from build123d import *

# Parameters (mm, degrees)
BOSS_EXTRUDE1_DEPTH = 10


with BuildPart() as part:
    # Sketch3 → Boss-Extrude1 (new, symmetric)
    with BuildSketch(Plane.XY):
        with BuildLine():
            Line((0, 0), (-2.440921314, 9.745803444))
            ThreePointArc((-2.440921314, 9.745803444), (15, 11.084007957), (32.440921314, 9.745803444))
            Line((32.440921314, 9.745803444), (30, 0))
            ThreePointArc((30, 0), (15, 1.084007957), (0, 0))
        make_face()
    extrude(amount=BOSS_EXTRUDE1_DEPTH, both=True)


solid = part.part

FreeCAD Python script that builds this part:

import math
import FreeCAD as App
import Part
import Sketcher
from FreeCAD import Vector

doc = App.newDocument("Part")
body = doc.addObject("PartDesign::Body", "Body")

sketch1 = body.newObject("Sketcher::SketchObject", "Sketch")
sketch1.AttachmentSupport = (doc.getObject("XY_Plane"), [""])
sketch1.MapMode = "FlatFace"
sketch1.addGeometry([
    Part.LineSegment(Vector(-2.440921, 9.745803, 0), Vector(0, 0, 0)),
    Part.ArcOfCircle(Part.Circle(Vector(15, -103.239522, 0), Vector(0, 0, 1), 104.32353), math.radians(81.733161), math.radians(98.266839)),
    Part.LineSegment(Vector(30, 0, 0), Vector(32.440921, 9.745803, 0)),
    Part.ArcOfCircle(Part.Circle(Vector(15, -103.239522, 0), Vector(0, 0, 1), 114.32353), math.radians(81.224829), math.radians(98.775171)),
], False)
sketch1.addConstraint([
    Sketcher.Constraint("Coincident", 0, 2, 1, 2),
    Sketcher.Constraint("Coincident", 1, 1, 2, 1),
    Sketcher.Constraint("Coincident", 2, 2, 3, 1),
    Sketcher.Constraint("Coincident", 3, 2, 0, 1),
    Sketcher.Constraint("Coincident", 0, 2, -1, 1),
    Sketcher.Constraint("Coincident", 3, 3, 1, 3),
    Sketcher.Constraint("PointOnObject", 1, 1, -1),
    Sketcher.Constraint("Horizontal", 2, 2, 3, 2),
    Sketcher.Constraint("DistanceX", -1, 1, 1, 3, 15.0),
    Sketcher.Constraint("Radius", 1, 104.32353),
    Sketcher.Constraint("Radius", 3, 114.32353),
    Sketcher.Constraint("Distance", 0, 10.046829),
])
pad1 = body.newObject("PartDesign::Pad", "Pad")
pad1.Profile = sketch1
pad1.Length = 20
pad1.Midplane = True

doc.recompute()
